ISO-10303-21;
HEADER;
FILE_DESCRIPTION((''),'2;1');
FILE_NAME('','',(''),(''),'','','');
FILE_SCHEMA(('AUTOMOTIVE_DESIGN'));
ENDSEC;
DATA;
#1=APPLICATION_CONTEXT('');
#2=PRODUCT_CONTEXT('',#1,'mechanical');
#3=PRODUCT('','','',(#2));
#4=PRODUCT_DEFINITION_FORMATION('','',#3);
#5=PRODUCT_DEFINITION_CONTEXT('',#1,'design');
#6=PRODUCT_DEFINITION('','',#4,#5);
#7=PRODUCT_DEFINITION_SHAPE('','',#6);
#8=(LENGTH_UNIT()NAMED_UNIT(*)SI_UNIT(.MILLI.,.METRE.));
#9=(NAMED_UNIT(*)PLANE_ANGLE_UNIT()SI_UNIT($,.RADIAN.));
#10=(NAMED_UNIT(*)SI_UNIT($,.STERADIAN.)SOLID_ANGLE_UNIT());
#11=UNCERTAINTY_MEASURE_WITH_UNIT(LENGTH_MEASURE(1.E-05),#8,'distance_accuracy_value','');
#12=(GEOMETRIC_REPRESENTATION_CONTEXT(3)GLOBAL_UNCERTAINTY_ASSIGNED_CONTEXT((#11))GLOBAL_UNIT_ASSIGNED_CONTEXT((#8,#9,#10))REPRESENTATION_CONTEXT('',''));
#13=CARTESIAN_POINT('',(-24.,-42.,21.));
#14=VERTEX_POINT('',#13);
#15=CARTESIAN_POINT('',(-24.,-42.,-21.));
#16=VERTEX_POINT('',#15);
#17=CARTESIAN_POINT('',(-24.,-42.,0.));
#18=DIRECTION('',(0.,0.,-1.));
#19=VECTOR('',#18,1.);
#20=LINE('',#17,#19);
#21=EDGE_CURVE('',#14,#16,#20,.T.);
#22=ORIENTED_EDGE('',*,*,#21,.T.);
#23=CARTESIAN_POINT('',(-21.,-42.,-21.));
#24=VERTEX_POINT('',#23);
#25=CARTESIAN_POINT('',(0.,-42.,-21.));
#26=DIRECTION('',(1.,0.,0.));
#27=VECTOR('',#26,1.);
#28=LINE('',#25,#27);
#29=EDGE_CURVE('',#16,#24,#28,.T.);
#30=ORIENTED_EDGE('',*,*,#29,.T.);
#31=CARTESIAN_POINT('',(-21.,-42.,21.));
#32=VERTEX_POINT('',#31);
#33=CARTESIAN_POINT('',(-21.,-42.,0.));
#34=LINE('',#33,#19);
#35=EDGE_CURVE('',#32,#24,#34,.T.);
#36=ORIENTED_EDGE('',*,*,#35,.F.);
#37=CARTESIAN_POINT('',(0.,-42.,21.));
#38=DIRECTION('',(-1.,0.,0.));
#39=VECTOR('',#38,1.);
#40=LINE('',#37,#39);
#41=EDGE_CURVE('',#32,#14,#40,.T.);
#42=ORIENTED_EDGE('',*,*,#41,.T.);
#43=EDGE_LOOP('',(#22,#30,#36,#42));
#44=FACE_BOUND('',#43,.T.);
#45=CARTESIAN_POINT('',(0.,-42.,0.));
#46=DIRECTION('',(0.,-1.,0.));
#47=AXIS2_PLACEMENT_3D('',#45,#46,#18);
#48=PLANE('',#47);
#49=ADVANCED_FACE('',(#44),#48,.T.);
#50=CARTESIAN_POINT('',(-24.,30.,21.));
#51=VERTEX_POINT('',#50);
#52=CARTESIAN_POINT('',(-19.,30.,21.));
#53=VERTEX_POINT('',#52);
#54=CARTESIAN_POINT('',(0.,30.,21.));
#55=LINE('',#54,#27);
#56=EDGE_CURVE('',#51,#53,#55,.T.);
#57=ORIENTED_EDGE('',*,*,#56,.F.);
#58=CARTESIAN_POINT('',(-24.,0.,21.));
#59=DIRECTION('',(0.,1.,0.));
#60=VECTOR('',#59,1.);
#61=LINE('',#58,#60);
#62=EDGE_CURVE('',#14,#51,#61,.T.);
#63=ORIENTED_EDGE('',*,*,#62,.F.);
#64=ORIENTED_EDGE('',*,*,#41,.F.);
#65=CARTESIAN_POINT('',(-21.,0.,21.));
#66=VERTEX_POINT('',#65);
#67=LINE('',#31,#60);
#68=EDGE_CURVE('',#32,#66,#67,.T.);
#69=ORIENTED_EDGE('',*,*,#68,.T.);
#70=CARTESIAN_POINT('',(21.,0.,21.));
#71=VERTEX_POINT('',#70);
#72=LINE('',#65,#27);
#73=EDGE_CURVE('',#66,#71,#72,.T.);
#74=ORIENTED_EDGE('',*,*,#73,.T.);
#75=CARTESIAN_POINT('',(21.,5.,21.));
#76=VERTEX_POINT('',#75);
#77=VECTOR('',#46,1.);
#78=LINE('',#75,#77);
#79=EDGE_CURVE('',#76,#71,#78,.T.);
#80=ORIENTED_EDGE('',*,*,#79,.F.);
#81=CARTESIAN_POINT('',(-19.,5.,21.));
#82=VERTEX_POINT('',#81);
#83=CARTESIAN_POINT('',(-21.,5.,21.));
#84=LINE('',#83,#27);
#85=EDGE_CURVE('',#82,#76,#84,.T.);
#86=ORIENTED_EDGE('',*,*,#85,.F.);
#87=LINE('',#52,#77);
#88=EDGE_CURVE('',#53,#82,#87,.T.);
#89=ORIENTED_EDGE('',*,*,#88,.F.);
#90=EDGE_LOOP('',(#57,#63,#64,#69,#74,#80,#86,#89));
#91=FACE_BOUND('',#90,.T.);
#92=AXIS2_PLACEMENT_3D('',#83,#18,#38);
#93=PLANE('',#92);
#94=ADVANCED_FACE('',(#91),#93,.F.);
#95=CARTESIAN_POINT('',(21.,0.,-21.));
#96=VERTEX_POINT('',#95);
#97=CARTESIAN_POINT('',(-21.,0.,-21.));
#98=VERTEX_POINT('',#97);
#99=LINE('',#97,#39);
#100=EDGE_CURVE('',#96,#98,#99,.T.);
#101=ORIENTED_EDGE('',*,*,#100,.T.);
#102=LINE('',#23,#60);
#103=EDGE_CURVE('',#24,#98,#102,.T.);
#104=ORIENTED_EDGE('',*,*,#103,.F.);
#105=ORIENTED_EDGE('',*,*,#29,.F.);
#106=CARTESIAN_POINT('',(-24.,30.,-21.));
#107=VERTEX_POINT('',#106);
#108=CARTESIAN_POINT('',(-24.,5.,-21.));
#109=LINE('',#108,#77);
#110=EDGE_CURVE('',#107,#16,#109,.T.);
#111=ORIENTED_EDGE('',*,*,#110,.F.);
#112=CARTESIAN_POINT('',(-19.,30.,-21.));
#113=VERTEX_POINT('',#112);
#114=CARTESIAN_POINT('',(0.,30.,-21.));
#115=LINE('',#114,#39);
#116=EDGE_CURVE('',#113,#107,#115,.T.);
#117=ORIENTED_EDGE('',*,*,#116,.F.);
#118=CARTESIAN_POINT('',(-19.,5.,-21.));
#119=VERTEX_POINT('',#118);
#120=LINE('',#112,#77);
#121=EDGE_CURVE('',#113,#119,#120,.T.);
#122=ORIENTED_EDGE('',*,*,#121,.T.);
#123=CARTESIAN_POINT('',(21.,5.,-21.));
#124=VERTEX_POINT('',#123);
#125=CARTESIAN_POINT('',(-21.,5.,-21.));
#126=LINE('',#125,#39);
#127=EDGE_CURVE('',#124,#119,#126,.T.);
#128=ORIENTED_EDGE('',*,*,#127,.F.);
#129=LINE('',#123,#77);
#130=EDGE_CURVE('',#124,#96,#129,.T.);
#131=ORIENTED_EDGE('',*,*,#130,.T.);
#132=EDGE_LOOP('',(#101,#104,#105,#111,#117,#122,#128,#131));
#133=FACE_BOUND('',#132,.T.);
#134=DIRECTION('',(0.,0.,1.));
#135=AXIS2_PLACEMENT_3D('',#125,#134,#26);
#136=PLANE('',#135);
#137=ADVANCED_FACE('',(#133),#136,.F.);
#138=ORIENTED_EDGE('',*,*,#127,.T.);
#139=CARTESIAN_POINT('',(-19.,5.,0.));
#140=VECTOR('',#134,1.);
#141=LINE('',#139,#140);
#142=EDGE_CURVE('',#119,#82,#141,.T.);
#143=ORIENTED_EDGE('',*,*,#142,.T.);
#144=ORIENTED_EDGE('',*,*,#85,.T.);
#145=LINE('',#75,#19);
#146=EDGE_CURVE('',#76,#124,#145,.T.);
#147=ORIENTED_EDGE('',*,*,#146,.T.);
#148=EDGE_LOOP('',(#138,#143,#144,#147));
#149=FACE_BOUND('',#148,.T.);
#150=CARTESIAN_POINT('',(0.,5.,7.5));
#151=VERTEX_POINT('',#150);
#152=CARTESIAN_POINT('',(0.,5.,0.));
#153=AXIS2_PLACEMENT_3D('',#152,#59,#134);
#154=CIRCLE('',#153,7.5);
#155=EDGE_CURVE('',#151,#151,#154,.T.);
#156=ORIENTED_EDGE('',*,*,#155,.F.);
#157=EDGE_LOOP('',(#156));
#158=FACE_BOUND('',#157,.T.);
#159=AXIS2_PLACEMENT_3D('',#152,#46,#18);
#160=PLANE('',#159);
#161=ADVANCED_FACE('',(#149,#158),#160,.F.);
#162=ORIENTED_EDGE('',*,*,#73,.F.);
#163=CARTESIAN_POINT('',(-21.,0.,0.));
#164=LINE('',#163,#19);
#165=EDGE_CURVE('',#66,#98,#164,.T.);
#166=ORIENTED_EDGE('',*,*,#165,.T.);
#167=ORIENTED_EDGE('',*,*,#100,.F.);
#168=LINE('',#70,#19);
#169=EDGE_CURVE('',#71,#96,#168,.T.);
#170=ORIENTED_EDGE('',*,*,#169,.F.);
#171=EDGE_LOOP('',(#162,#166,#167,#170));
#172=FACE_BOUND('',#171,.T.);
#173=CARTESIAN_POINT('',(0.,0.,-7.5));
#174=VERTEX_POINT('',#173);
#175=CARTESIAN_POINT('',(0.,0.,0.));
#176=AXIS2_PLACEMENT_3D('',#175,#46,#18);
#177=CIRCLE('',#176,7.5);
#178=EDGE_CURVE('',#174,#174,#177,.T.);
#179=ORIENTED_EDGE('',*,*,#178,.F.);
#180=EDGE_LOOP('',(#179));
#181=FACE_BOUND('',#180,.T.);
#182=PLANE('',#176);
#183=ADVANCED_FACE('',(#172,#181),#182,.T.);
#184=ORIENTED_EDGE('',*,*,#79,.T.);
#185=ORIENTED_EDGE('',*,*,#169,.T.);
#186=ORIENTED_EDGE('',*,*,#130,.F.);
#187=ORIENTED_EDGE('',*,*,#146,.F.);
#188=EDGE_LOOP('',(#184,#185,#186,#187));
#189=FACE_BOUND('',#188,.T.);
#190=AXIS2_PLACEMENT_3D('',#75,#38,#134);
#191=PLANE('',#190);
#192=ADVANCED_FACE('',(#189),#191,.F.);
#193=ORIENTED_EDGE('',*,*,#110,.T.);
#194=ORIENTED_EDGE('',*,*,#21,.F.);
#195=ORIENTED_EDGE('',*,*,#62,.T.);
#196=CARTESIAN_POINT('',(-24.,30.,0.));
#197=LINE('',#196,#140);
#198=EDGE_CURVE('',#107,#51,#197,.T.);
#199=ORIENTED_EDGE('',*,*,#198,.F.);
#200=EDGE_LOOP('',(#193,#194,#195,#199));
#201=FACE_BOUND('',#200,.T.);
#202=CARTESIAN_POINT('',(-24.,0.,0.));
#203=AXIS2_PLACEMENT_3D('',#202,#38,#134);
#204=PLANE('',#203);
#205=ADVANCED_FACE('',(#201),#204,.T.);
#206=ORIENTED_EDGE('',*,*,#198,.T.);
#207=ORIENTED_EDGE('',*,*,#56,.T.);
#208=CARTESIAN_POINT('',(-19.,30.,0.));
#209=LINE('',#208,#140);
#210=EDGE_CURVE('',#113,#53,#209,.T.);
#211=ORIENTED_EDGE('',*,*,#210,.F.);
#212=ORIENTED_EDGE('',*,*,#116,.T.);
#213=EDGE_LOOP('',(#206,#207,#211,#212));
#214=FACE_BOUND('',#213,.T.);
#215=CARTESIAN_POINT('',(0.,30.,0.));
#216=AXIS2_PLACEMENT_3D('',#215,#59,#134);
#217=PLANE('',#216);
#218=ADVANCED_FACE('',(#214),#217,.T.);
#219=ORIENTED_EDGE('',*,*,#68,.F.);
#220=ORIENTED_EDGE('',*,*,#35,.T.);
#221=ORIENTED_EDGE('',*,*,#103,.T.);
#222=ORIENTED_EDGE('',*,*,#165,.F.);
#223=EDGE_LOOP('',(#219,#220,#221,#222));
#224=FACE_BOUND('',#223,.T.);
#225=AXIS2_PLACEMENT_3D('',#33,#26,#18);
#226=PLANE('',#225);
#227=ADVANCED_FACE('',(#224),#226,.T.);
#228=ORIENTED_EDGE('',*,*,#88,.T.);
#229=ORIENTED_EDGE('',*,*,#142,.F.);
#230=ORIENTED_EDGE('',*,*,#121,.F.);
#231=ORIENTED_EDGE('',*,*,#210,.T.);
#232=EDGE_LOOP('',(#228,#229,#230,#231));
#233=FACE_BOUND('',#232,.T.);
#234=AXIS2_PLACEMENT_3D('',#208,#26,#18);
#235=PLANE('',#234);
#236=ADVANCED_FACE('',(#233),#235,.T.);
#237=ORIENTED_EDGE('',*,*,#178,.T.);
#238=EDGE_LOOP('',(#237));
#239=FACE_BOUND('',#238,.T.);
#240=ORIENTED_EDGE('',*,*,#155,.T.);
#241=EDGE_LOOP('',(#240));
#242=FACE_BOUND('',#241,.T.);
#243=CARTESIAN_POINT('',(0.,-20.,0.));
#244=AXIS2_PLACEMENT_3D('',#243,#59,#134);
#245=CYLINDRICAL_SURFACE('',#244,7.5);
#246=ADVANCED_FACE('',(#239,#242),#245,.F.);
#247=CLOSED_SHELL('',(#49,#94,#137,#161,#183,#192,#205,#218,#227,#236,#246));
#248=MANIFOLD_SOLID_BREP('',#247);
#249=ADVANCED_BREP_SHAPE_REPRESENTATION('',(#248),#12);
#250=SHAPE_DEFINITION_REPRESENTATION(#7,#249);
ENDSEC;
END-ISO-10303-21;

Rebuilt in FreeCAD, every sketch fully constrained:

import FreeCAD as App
import Part
import Sketcher

V = App.Vector


def add_polygon(sketch, points):
    """Adds a closed chain of lines whose ends are joined by coincident constraints."""
    first, n = sketch.GeometryCount, len(points)
    for a, b in zip(points, points[1:] + points[:1]):
        sketch.addGeometry(Part.LineSegment(App.Vector(*a, 0), App.Vector(*b, 0)), False)
    for i in range(n):
        sketch.addConstraint(Sketcher.Constraint("Coincident", first + i, 2, first + (i + 1) % n, 1))

doc = App.newDocument("Part")
params = doc.addObject("Spreadsheet::Sheet", "Params")
for row, (alias, value) in enumerate([
    ("sketch1_width", "42 mm"),
    ("pad1_length", "5 mm"),
    ("sketch2_width", "5 mm"),
    ("sketch2_height", "42 mm"),
    ("pad2_length", "3 mm"),
    ("sketch3_width", "5 mm"),
    ("sketch3_height", "42 mm"),
    ("pad3_length", "25 mm"),
    ("sketch4_width", "3 mm"),
    ("sketch4_height", "42 mm"),
    ("pad4_length", "42 mm"),
    ("sketch5_diameter", "15 mm"),
    ("pocket1_length", "25 mm"),
], start=1):
    params.set(f"A{row}", alias)
    params.set(f"B{row}", "=" + value)
    params.setAlias(f"B{row}", alias)

body = doc.addObject("PartDesign::Body", "Body")

sketch1 = body.newObject("Sketcher::SketchObject", "Sketch")
sketch1.AttachmentSupport = (doc.getObject("XZ_Plane"), [""])
sketch1.MapMode = "FlatFace"
add_polygon(sketch1, [(-21, -21), (-21, 21), (21, 21), (21, -21)])
sketch1.addConstraint([
    Sketcher.Constraint("Vertical", 0),
    Sketcher.Constraint("Horizontal", 1),
    Sketcher.Constraint("Vertical", 2),
    Sketcher.Constraint("Horizontal", 3),
    Sketcher.Constraint("Symmetric", 0, 2, 2, 2, -1, 1),
    Sketcher.Constraint("Equal", 3, 0),
    Sketcher.Constraint("DistanceX", 1, 1, 1, 2, 42.0),
])
sketch1.setExpression("Constraints[10]", "Params.sketch1_width")
pad1 = body.newObject("PartDesign::Pad", "Pad")
pad1.Profile = sketch1
pad1.setExpression("Length", "Params.pad1_length")
pad1.Reversed = True

sketch2 = body.newObject("Sketcher::SketchObject", "Sketch001")
sketch2.AttachmentSupport = (doc.getObject("YZ_Plane"), [""])
sketch2.MapMode = "FlatFace"
sketch2.AttachmentOffset = App.Placement(V(0, 0, -21), App.Rotation())
add_polygon(sketch2, [(5, -21), (0, -21), (0, 21), (5, 21)])
sketch2.addConstraint([
    Sketcher.Constraint("Horizontal", 0),
    Sketcher.Constraint("Vertical", 1),
    Sketcher.Constraint("Horizontal", 2),
    Sketcher.Constraint("Vertical", 3),
    Sketcher.Constraint("Symmetric", 0, 2, 1, 2, -1, 1),
    Sketcher.Constraint("DistanceX", 0, 2, 0, 1, 5.0),
    Sketcher.Constraint("DistanceY", 1, 1, 1, 2, 42.0),
])
sketch2.setExpression("Constraints[9]", "Params.sketch2_width")
sketch2.setExpression("Constraints[10]", "Params.sketch2_height")
pad2 = body.newObject("PartDesign::Pad", "Pad001")
pad2.Profile = sketch2
pad2.setExpression("Length", "Params.pad2_length")
pad2.Reversed = True

sketch3 = body.newObject("Sketcher::SketchObject", "Sketch002")
sketch3.AttachmentSupport = (doc.getObject("XZ_Plane"), [""])
sketch3.MapMode = "FlatFace"
sketch3.AttachmentOffset = App.Placement(V(0, 0, -5), App.Rotation())
add_polygon(sketch3, [(-24, -21), (-24, 21), (-19, 21), (-19, -21)])
sketch3.addConstraint([
    Sketcher.Constraint("Vertical", 0),
    Sketcher.Constraint("Horizontal", 1),
    Sketcher.Constraint("Vertical", 2),
    Sketcher.Constraint("Horizontal", 3),
    Sketcher.Constraint("DistanceX", 1, 1, 1, 2, 5.0),
    Sketcher.Constraint("DistanceY", 0, 1, 0, 2, 42.0),
    Sketcher.Constraint("DistanceX", 0, 2, -1, 1, 24.0),
    Sketcher.Constraint("DistanceY", -1, 1, 0, 2, 21.0),
])
sketch3.setExpression("Constraints[8]", "Params.sketch3_width")
sketch3.setExpression("Constraints[9]", "Params.sketch3_height")
pad3 = body.newObject("PartDesign::Pad", "Pad002")
pad3.Profile = sketch3
pad3.setExpression("Length", "Params.pad3_length")
pad3.Reversed = True

sketch4 = body.newObject("Sketcher::SketchObject", "Sketch003")
sketch4.AttachmentSupport = (doc.getObject("XZ_Plane"), [""])
sketch4.MapMode = "FlatFace"
add_polygon(sketch4, [(-24, 21), (-24, -21), (-21, -21), (-21, 21)])
sketch4.addConstraint([
    Sketcher.Constraint("Vertical", 0),
    Sketcher.Constraint("Horizontal", 1),
    Sketcher.Constraint("Vertical", 2),
    Sketcher.Constraint("Horizontal", 3),
    Sketcher.Constraint("DistanceX", 1, 1, 1, 2, 3.0),
    Sketcher.Constraint("DistanceY", 0, 2, 0, 1, 42.0),
    Sketcher.Constraint("DistanceX", 0, 2, -1, 1, 24.0),
    Sketcher.Constraint("DistanceY", 0, 2, -1, 1, 21.0),
])
sketch4.setExpression("Constraints[8]", "Params.sketch4_width")
sketch4.setExpression("Constraints[9]", "Params.sketch4_height")
pad4 = body.newObject("PartDesign::Pad", "Pad003")
pad4.Profile = sketch4
pad4.setExpression("Length", "Params.pad4_length")

sketch5 = body.newObject("Sketcher::SketchObject", "Sketch004")
sketch5.AttachmentSupport = (doc.getObject("XZ_Plane"), [""])
sketch5.MapMode = "FlatFace"
sketch5.AttachmentOffset = App.Placement(V(0, 0, -5), App.Rotation())
sketch5.addGeometry(Part.Circle(V(0, 0, 0), V(0, 0, 1), 8), False)
sketch5.addConstraint([
    Sketcher.Constraint("Coincident", 0, 3, -1, 1),
    Sketcher.Constraint("Diameter", 0, 15.0),
])
sketch5.setExpression("Constraints[1]", "Params.sketch5_diameter")
pocket1 = body.newObject("PartDesign::Pocket", "Pocket")
pocket1.Profile = sketch5
pocket1.setExpression("Length", "Params.pocket1_length")
pocket1.Reversed = True

doc.recompute()
